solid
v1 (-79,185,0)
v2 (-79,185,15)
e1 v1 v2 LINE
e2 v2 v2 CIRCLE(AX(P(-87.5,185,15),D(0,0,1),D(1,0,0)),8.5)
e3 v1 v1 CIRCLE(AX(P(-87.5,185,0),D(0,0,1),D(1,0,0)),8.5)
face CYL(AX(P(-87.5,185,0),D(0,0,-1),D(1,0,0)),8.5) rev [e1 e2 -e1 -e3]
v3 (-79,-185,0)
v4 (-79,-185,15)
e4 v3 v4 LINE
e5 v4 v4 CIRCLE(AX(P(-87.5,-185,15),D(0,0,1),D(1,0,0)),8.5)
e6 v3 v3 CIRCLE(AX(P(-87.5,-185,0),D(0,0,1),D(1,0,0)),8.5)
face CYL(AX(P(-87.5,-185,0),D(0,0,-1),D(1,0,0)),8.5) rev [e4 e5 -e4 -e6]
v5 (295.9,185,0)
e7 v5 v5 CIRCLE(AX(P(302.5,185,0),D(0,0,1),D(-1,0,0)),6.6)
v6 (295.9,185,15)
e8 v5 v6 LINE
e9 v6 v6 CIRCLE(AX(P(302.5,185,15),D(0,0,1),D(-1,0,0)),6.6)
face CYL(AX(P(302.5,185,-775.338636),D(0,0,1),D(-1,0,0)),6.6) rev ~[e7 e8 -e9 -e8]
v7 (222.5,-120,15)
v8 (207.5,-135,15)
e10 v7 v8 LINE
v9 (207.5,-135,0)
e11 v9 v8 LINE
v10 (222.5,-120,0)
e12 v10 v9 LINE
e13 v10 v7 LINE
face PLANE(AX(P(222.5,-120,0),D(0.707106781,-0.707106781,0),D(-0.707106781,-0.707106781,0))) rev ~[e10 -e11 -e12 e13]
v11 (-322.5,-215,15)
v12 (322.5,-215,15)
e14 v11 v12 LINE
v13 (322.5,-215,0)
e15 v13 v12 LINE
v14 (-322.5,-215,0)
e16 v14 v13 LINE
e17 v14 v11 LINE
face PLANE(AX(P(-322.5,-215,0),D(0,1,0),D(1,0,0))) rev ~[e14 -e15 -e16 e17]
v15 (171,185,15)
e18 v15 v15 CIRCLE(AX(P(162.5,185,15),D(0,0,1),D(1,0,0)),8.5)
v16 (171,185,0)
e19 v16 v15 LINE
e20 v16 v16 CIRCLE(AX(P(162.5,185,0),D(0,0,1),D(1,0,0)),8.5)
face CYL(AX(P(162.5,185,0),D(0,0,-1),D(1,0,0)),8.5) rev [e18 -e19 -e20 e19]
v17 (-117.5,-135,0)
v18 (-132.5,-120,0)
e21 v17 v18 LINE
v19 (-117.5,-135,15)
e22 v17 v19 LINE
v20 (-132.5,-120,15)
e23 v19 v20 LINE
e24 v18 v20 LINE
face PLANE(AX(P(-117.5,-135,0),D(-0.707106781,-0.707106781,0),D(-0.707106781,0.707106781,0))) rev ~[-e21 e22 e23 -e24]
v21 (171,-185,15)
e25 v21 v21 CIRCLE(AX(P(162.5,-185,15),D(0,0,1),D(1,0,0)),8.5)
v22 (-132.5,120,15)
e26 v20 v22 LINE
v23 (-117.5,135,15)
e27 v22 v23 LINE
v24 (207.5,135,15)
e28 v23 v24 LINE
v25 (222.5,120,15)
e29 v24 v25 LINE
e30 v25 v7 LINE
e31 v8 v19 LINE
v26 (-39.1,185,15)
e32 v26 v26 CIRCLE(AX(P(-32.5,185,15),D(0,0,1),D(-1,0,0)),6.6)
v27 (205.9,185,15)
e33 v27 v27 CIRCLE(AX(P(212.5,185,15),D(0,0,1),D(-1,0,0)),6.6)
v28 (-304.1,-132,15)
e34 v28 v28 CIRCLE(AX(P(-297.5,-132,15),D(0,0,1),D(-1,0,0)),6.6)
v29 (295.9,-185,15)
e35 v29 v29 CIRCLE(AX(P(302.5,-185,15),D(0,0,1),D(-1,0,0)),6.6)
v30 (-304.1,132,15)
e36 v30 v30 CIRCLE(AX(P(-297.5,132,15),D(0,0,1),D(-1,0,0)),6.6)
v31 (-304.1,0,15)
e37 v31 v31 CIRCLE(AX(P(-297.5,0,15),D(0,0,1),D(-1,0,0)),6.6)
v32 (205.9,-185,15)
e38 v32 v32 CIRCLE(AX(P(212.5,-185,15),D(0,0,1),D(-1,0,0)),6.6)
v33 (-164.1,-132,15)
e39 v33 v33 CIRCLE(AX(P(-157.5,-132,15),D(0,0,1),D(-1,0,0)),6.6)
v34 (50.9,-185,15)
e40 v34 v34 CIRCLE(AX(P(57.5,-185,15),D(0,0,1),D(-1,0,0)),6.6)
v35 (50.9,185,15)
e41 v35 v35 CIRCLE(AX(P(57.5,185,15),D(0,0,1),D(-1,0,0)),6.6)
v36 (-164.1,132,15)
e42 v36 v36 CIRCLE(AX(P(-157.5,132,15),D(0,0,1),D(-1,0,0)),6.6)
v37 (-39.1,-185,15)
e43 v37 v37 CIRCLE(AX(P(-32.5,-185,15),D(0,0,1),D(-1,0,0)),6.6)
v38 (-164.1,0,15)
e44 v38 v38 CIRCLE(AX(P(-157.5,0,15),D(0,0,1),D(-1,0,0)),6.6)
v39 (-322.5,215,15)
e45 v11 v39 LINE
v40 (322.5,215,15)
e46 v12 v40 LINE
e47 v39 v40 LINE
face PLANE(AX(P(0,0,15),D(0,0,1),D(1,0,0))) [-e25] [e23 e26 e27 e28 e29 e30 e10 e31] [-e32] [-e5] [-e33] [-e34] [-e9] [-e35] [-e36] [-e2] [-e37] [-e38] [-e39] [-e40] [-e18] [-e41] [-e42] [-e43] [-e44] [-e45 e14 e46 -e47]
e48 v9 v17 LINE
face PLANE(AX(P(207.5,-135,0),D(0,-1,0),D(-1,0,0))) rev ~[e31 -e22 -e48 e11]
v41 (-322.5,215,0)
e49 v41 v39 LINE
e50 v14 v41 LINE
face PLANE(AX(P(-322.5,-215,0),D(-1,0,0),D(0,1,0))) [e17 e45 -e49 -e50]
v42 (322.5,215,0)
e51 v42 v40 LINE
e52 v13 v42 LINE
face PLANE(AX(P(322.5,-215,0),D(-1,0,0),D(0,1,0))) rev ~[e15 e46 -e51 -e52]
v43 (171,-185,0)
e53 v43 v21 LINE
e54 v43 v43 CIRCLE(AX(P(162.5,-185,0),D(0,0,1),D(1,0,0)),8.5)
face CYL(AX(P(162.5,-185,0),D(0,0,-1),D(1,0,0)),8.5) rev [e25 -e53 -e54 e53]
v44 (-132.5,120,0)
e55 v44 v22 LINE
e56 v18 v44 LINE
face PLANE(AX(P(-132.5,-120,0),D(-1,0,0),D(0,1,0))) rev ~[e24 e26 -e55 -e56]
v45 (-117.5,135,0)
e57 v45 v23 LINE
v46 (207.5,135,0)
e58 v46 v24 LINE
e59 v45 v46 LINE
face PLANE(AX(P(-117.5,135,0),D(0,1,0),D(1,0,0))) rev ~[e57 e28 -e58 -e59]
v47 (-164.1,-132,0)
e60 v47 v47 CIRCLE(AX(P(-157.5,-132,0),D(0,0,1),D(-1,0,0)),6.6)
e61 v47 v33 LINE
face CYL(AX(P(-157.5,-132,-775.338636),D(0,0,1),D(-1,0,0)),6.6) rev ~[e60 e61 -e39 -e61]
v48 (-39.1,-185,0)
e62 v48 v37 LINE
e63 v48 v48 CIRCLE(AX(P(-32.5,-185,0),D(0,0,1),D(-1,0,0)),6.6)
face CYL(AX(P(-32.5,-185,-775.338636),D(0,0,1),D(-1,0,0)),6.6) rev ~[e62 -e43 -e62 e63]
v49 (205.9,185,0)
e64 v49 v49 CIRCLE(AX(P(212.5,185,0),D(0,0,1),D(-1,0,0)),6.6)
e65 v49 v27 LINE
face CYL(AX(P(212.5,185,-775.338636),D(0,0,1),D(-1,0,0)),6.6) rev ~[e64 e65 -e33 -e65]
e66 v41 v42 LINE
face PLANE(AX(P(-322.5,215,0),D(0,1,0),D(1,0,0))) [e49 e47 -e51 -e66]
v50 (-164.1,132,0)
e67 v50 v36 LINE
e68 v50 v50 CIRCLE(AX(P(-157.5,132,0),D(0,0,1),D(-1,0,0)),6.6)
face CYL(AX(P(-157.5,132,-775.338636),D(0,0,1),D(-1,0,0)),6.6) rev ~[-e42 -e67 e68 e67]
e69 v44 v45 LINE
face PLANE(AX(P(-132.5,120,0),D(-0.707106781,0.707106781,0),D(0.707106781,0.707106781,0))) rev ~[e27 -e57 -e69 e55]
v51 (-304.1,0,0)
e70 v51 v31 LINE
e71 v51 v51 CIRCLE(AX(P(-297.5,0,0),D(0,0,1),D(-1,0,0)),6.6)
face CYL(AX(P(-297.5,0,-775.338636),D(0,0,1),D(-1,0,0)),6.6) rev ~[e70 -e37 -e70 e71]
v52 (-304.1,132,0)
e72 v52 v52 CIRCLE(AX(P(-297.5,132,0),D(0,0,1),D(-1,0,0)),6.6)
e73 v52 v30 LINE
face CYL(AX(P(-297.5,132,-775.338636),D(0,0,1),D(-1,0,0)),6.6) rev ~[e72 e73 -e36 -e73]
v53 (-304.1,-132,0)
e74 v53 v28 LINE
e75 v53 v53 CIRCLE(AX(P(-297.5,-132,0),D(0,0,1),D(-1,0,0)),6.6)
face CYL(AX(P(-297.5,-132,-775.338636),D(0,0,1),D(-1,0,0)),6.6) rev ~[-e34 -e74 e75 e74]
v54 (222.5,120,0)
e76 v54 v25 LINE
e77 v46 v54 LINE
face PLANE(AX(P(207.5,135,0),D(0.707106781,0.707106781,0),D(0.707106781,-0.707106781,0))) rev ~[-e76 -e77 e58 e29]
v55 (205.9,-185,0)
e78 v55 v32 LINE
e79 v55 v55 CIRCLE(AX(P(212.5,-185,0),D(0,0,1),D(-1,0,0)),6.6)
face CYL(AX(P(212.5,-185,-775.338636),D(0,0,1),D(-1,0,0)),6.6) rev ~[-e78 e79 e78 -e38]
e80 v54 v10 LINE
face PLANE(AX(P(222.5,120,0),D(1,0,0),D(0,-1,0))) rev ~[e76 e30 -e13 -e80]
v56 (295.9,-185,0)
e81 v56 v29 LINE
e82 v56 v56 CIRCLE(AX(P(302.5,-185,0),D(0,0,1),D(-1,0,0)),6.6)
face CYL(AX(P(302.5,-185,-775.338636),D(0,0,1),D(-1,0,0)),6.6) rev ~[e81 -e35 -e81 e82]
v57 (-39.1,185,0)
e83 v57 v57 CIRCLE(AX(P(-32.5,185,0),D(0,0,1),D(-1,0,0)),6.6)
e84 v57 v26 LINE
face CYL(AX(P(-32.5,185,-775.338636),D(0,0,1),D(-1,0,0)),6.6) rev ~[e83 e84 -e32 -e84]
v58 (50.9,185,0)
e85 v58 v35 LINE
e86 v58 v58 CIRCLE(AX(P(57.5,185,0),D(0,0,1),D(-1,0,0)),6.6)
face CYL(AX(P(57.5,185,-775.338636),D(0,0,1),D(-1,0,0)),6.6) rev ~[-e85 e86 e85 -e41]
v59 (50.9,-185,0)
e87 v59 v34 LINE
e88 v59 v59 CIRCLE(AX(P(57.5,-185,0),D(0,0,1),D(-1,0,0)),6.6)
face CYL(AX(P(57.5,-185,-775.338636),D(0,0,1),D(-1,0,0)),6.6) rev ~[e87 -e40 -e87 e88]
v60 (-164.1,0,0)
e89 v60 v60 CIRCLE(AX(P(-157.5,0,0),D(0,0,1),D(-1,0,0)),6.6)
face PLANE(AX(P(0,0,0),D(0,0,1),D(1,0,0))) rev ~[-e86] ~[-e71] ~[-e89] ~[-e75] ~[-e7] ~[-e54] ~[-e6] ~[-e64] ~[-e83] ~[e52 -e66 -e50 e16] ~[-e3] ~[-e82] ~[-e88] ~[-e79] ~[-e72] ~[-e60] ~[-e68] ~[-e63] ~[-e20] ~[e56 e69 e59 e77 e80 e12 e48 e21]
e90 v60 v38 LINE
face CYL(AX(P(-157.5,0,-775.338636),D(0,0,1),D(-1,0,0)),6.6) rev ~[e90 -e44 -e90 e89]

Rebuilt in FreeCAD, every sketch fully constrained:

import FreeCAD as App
import Part
import Sketcher

V = App.Vector

doc = App.newDocument("Part")
body = doc.addObject("PartDesign::Body", "Body")

# Sketch on XY plane
sketch1 = body.newObject("Sketcher::SketchObject", "Sketch")
sketch1.AttachmentSupport = (doc.getObject("XY_Plane"), [""])
sketch1.MapMode = "FlatFace"
sketch1.addGeometry([
    Part.LineSegment(V(-322, 215, 0), V(-322, -215, 0)),  # 0
    Part.LineSegment(V(-322, -215, 0), V(322, -215, 0)),  # 1
    Part.LineSegment(V(322, -215, 0), V(322, 215, 0)),  # 2
    Part.LineSegment(V(322, 215, 0), V(-322, 215, 0)),  # 3
    Part.LineSegment(V(-132, -120, 0), V(-132, 120, 0)),  # 4
    Part.LineSegment(V(-132, 120, 0), V(-118, 135, 0)),  # 5
    Part.LineSegment(V(-118, 135, 0), V(208, 135, 0)),  # 6
    Part.LineSegment(V(208, 135, 0), V(222, 120, 0)),  # 7
    Part.LineSegment(V(222, 120, 0), V(222, -120, 0)),  # 8
    Part.LineSegment(V(222, -120, 0), V(208, -135, 0)),  # 9
    Part.LineSegment(V(208, -135, 0), V(-118, -135, 0)),  # 10
    Part.LineSegment(V(-118, -135, 0), V(-132, -120, 0)),  # 11
], False)
sketch1.addConstraint([
    Sketcher.Constraint("Coincident", 0, 2, 1, 1),
    Sketcher.Constraint("Coincident", 1, 2, 2, 1),
    Sketcher.Constraint("Coincident", 2, 2, 3, 1),
    Sketcher.Constraint("Coincident", 3, 2, 0, 1),
    Sketcher.Constraint("Coincident", 4, 2, 5, 1),
    Sketcher.Constraint("Coincident", 5, 2, 6, 1),
    Sketcher.Constraint("Coincident", 6, 2, 7, 1),
    Sketcher.Constraint("Coincident", 7, 2, 8, 1),
    Sketcher.Constraint("Coincident", 8, 2, 9, 1),
    Sketcher.Constraint("Coincident", 9, 2, 10, 1),
    Sketcher.Constraint("Coincident", 10, 2, 11, 1),
    Sketcher.Constraint("Coincident", 11, 2, 4, 1),
    Sketcher.Constraint("Vertical", 0),
    Sketcher.Constraint("Horizontal", 1),
    Sketcher.Constraint("Vertical", 2),
    Sketcher.Constraint("Horizontal", 3),
    Sketcher.Constraint("Vertical", 4),
    Sketcher.Constraint("Horizontal", 6),
    Sketcher.Constraint("Vertical", 8),
    Sketcher.Constraint("Horizontal", 10),
    Sketcher.Constraint("Symmetric", 0, 2, 2, 2, -1, 1),
    Sketcher.Constraint("Symmetric", 6, 2, 9, 2, -1),
    Sketcher.Constraint("Perpendicular", 5, 7),
    Sketcher.Constraint("Perpendicular", 7, 9),
    Sketcher.Constraint("Perpendicular", 9, 11),
    Sketcher.Constraint("Horizontal", 4, 2, 7, 2),
    Sketcher.Constraint("Horizontal", 8, 2, 11, 2),
    Sketcher.Constraint("Vertical", 5, 2, 10, 2),
    Sketcher.Constraint("DistanceX", 1, 1, 1, 2, 645.0),
    Sketcher.Constraint("DistanceX", 6, 1, 6, 2, 325.0),
    Sketcher.Constraint("DistanceY", 0, 2, 0, 1, 430.0),
    Sketcher.Constraint("DistanceY", 4, 1, 4, 2, 240.0),
    Sketcher.Constraint("DistanceY", -1, 1, 5, 2, 135.0),
    Sketcher.Constraint("DistanceX", 3, 2, 4, 2, 190.0),
])
pad1 = body.newObject("PartDesign::Pad", "Pad")
pad1.Profile = sketch1
pad1.Length = 15

# Sketch on XY plane
sketch2 = body.newObject("Sketcher::SketchObject", "Sketch001")
sketch2.AttachmentSupport = (doc.getObject("XY_Plane"), [""])
sketch2.MapMode = "FlatFace"
sketch2.addGeometry([
    Part.Circle(V(-298, 132, 0), V(0, 0, 1), 7),  # 0
    Part.Circle(V(-298, 0, 0), V(0, 0, 1), 7),  # 1
    Part.Circle(V(-298, -132, 0), V(0, 0, 1), 7),  # 2
    Part.Circle(V(-158, 132, 0), V(0, 0, 1), 7),  # 3
    Part.Circle(V(-158, 0, 0), V(0, 0, 1), 7),  # 4
    Part.Circle(V(-158, -132, 0), V(0, 0, 1), 7),  # 5
    Part.Circle(V(-32, -185, 0), V(0, 0, 1), 7),  # 6
    Part.Circle(V(58, -185, 0), V(0, 0, 1), 7),  # 7
    Part.Circle(V(212, -185, 0), V(0, 0, 1), 7),  # 8
    Part.Circle(V(302, -185, 0), V(0, 0, 1), 7),  # 9
    Part.Circle(V(302, 185, 0), V(0, 0, 1), 7),  # 10
    Part.Circle(V(212, 185, 0), V(0, 0, 1), 7),  # 11
    Part.Circle(V(58, 185, 0), V(0, 0, 1), 7),  # 12
    Part.Circle(V(-32, 185, 0), V(0, 0, 1), 7),  # 13
], False)
sketch2.addConstraint([
    Sketcher.Constraint("Equal", 0, 1),
    Sketcher.Constraint("Equal", 1, 2),
    Sketcher.Constraint("Equal", 2, 3),
    Sketcher.Constraint("Equal", 3, 4),
    Sketcher.Constraint("Equal", 4, 5),
    Sketcher.Constraint("Equal", 5, 6),
    Sketcher.Constraint("Equal", 6, 7),
    Sketcher.Constraint("Equal", 7, 8),
    Sketcher.Constraint("Equal", 8, 9),
    Sketcher.Constraint("Equal", 9, 10),
    Sketcher.Constraint("Equal", 10, 11),
    Sketcher.Constraint("Equal", 11, 12),
    Sketcher.Constraint("Equal", 12, 13),
    Sketcher.Constraint("Symmetric", 0, 3, 2, 3, -1),
    Sketcher.Constraint("Symmetric", 3, 3, 5, 3, -1),
    Sketcher.Constraint("Symmetric", 9, 3, 10, 3, -1),
    Sketcher.Constraint("Symmetric", 8, 3, 11, 3, -1),
    Sketcher.Constraint("Symmetric", 7, 3, 12, 3, -1),
    Sketcher.Constraint("Symmetric", 6, 3, 13, 3, -1),
    Sketcher.Constraint("PointOnObject", 1, 3, -1),
    Sketcher.Constraint("PointOnObject", 4, 3, -1),
    Sketcher.Constraint("Horizontal", 0, 3, 3, 3),
    Sketcher.Constraint("Horizontal", 6, 3, 7, 3),
    Sketcher.Constraint("Horizontal", 7, 3, 8, 3),
    Sketcher.Constraint("Horizontal", 8, 3, 9, 3),
    Sketcher.Constraint("Vertical", 0, 3, 1, 3),
    Sketcher.Constraint("Vertical", 3, 3, 4, 3),
    Sketcher.Constraint("Diameter", 0, 13.2),
    Sketcher.Constraint("DistanceY", -1, 1, 0, 3, 132.0),
    Sketcher.Constraint("DistanceY", 6, 3, -1, 1, 185.0),
    Sketcher.Constraint("DistanceX", 0, 3, 3, 3, 140.0),
    Sketcher.Constraint("DistanceX", 5, 3, 6, 3, 125.0),
    Sketcher.Constraint("DistanceX", 6, 3, 7, 3, 90.0),
    Sketcher.Constraint("DistanceX", 7, 3, 8, 3, 155.0),
    Sketcher.Constraint("DistanceX", 8, 3, 9, 3, 90.0),
    Sketcher.Constraint("DistanceX", 0, 3, -1, 1, 297.5),
])
doc.recompute()
hole = body.newObject("PartDesign::Hole", "Hole")
hole.Profile = sketch2
hole.ThreadType = "None"
hole.Diameter = 13.2
hole.DepthType = "ThroughAll"
hole.Reversed = True

# Sketch on XY plane
sketch3 = body.newObject("Sketcher::SketchObject", "Sketch002")
sketch3.AttachmentSupport = (doc.getObject("XY_Plane"), [""])
sketch3.MapMode = "FlatFace"
sketch3.addGeometry([
    Part.Circle(V(-88, 185, 0), V(0, 0, 1), 8),
    Part.Circle(V(162, 185, 0), V(0, 0, 1), 8),
    Part.Circle(V(162, -185, 0), V(0, 0, 1), 8),
    Part.Circle(V(-88, -185, 0), V(0, 0, 1), 8),
], False)
sketch3.addConstraint([
    Sketcher.Constraint("Equal", 0, 1),
    Sketcher.Constraint("Equal", 1, 2),
    Sketcher.Constraint("Equal", 2, 3),
    Sketcher.Constraint("Symmetric", 1, 3, 2, 3, -1),
    Sketcher.Constraint("Symmetric", 0, 3, 3, 3, -1),
    Sketcher.Constraint("Horizontal", 0, 3, 1, 3),
    Sketcher.Constraint("Diameter", 0, 17.0),
    Sketcher.Constraint("DistanceY", -1, 1, 0, 3, 185.0),
    Sketcher.Constraint("DistanceX", 0, 3, 1, 3, 250.0),
    Sketcher.Constraint("DistanceX", 0, 3, -1, 1, 87.5),
])
pocket1 = body.newObject("PartDesign::Pocket", "Pocket")
pocket1.Profile = sketch3
pocket1.Type = "ThroughAll"
pocket1.Reversed = True

doc.recompute()
